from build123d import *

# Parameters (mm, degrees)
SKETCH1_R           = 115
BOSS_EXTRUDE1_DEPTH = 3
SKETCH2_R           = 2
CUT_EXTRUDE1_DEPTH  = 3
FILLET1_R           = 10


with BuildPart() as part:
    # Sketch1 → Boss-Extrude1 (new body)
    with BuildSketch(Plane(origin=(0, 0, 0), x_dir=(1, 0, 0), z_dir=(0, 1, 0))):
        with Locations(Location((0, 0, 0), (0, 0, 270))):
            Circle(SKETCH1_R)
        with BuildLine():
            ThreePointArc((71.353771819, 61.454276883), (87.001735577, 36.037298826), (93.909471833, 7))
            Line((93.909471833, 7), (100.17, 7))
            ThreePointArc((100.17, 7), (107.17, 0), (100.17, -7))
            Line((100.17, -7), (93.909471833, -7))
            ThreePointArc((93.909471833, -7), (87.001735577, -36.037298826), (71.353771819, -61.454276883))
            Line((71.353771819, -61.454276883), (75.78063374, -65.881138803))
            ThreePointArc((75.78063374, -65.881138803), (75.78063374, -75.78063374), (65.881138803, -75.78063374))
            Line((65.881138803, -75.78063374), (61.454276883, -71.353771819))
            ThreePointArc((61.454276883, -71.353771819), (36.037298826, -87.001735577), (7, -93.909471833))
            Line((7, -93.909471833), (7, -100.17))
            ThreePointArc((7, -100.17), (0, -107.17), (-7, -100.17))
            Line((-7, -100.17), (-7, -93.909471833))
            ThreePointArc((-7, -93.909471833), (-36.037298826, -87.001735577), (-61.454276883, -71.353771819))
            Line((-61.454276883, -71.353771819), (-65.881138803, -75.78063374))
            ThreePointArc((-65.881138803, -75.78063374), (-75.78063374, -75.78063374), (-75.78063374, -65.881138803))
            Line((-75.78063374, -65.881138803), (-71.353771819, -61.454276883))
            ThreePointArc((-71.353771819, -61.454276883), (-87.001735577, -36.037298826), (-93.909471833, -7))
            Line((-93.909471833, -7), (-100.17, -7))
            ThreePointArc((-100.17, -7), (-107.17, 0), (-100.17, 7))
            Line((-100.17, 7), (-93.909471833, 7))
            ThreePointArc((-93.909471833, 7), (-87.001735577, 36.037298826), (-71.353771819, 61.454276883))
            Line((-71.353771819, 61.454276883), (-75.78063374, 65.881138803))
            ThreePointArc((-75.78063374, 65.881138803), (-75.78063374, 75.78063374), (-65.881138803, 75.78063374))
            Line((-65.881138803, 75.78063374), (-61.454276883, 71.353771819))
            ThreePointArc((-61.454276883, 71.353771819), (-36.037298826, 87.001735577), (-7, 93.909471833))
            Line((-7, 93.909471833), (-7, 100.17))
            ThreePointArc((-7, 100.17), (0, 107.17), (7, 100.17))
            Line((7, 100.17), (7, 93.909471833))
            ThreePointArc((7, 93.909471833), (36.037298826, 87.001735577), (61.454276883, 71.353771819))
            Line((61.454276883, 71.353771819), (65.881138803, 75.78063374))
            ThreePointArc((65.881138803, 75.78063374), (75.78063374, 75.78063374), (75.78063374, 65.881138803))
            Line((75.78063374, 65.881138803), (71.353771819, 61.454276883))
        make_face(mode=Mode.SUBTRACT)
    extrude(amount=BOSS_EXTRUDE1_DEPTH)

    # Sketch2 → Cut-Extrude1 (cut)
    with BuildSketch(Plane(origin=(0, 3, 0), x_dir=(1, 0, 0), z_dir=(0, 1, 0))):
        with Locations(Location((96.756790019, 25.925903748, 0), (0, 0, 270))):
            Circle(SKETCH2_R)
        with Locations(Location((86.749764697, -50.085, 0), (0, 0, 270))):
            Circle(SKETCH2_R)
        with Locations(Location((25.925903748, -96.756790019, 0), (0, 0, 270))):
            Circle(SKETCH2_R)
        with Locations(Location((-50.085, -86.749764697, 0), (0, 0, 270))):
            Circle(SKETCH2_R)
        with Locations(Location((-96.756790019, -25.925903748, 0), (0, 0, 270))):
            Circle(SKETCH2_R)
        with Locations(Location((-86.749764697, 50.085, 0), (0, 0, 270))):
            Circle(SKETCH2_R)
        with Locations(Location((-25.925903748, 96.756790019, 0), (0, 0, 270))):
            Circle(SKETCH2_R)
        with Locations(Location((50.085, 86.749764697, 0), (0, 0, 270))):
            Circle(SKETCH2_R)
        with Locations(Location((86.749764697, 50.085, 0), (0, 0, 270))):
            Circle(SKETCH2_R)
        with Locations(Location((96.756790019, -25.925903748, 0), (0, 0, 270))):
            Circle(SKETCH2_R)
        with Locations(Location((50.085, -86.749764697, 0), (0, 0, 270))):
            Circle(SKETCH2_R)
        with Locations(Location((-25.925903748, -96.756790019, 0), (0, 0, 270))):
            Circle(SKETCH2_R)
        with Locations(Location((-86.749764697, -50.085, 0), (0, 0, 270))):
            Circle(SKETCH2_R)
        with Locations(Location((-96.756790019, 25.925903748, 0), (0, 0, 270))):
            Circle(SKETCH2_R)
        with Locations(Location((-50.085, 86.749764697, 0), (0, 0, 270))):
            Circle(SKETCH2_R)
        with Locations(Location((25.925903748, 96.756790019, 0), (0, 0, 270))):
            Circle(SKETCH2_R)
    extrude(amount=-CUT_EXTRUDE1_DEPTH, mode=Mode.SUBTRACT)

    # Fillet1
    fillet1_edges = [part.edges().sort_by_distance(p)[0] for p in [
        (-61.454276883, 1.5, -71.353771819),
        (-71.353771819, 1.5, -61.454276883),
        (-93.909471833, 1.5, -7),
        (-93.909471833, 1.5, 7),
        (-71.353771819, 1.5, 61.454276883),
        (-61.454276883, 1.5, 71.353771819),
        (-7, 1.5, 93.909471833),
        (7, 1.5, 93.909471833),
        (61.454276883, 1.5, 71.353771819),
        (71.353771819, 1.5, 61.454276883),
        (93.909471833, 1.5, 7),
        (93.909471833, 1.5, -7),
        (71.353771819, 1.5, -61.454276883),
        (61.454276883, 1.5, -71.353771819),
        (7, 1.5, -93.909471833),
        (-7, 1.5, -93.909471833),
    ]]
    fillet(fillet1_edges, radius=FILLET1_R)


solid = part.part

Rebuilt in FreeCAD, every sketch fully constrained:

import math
import FreeCAD as App
import Part
import Sketcher


def edges_at(feature, points):
    """Names of the edges that pass closest to the given points."""
    edges = feature.Shape.Edges
    near = lambda p: min(range(len(edges)), key=lambda i: edges[i].distToShape(Part.Vertex(*p))[0])
    return sorted({f"Edge{near(p) + 1}" for p in points})

doc = App.newDocument("Part")
body = doc.addObject("PartDesign::Body", "Body")

# Sketch on XZ plane
sketch1 = body.newObject("Sketcher::SketchObject", "Sketch")
sketch1.AttachmentSupport = (doc.getObject("XZ_Plane"), [""])
sketch1.MapMode = "FlatFace"
sketch1.addGeometry(Part.Circle(App.Vector(0, 0, 0), App.Vector(0, 0, 1), 115), False)
sketch1.addGeometry(Part.LineSegment(App.Vector(75.780634, -65.881139, 0), App.Vector(71.353772, -61.454277, 0)), False)
sketch1.addGeometry(Part.ArcOfCircle(Part.Circle(App.Vector(0, 0, 0), App.Vector(0, 0, 1), 94.17), math.radians(-40.737064), math.radians(-4.262936)), False)
sketch1.addGeometry(Part.LineSegment(App.Vector(93.909472, -7, 0), App.Vector(100.17, -7, 0)), False)
sketch1.addGeometry(Part.ArcOfCircle(Part.Circle(App.Vector(100.17, 0, 0), App.Vector(0, 0, 1), 7), math.radians(-90), math.radians(90)), False)
sketch1.addGeometry(Part.LineSegment(App.Vector(100.17, 7, 0), App.Vector(93.909472, 7, 0)), False)
sketch1.addGeometry(Part.ArcOfCircle(Part.Circle(App.Vector(0, 0, 0), App.Vector(0, 0, 1), 94.17), math.radians(4.262936), math.radians(40.737064)), False)
sketch1.addGeometry(Part.LineSegment(App.Vector(71.353772, 61.454277, 0), App.Vector(75.780634, 65.881139, 0)), False)
sketch1.addGeometry(Part.ArcOfCircle(Part.Circle(App.Vector(70.830886, 70.830886, 0), App.Vector(0, 0, 1), 7), math.radians(-45), math.radians(135)), False)
sketch1.addGeometry(Part.LineSegment(App.Vector(65.881139, 75.780634, 0), App.Vector(61.454277, 71.353772, 0)), False)
sketch1.addGeometry(Part.ArcOfCircle(Part.Circle(App.Vector(0, 0, 0), App.Vector(0, 0, 1), 94.17), math.radians(49.262936), math.radians(85.737064)), False)
sketch1.addGeometry(Part.LineSegment(App.Vector(7, 93.909472, 0), App.Vector(7, 100.17, 0)), False)
sketch1.addGeometry(Part.ArcOfCircle(Part.Circle(App.Vector(0, 100.17, 0), App.Vector(0, 0, 1), 7), math.radians(0), math.radians(180)), False)
sketch1.addGeometry(Part.LineSegment(App.Vector(-7, 100.17, 0), App.Vector(-7, 93.909472, 0)), False)
sketch1.addGeometry(Part.ArcOfCircle(Part.Circle(App.Vector(0, 0, 0), App.Vector(0, 0, 1), 94.17), math.radians(94.262936), math.radians(130.737064)), False)
sketch1.addGeometry(Part.LineSegment(App.Vector(-61.454277, 71.353772, 0), App.Vector(-65.881139, 75.780634, 0)), False)
sketch1.addGeometry(Part.ArcOfCircle(Part.Circle(App.Vector(-70.830886, 70.830886, 0), App.Vector(0, 0, 1), 7), math.radians(45), math.radians(225)), False)
sketch1.addGeometry(Part.LineSegment(App.Vector(-75.780634, 65.881139, 0), App.Vector(-71.353772, 61.454277, 0)), False)
sketch1.addGeometry(Part.ArcOfCircle(Part.Circle(App.Vector(0, 0, 0), App.Vector(0, 0, 1), 94.17), math.radians(139.262936), math.radians(175.737064)), False)
sketch1.addGeometry(Part.LineSegment(App.Vector(-93.909472, 7, 0), App.Vector(-100.17, 7, 0)), False)
sketch1.addGeometry(Part.ArcOfCircle(Part.Circle(App.Vector(-100.17, 0, 0), App.Vector(0, 0, 1), 7), math.radians(90), math.radians(270)), False)
sketch1.addGeometry(Part.LineSegment(App.Vector(-100.17, -7, 0), App.Vector(-93.909472, -7, 0)), False)
sketch1.addGeometry(Part.ArcOfCircle(Part.Circle(App.Vector(0, 0, 0), App.Vector(0, 0, 1), 94.17), math.radians(-175.737064), math.radians(-139.262936)), False)
sketch1.addGeometry(Part.LineSegment(App.Vector(-71.353772, -61.454277, 0), App.Vector(-75.780634, -65.881139, 0)), False)
sketch1.addGeometry(Part.ArcOfCircle(Part.Circle(App.Vector(-70.830886, -70.830886, 0), App.Vector(0, 0, 1), 7), math.radians(135), math.radians(315)), False)
sketch1.addGeometry(Part.LineSegment(App.Vector(-65.881139, -75.780634, 0), App.Vector(-61.454277, -71.353772, 0)), False)
sketch1.addGeometry(Part.ArcOfCircle(Part.Circle(App.Vector(0, 0, 0), App.Vector(0, 0, 1), 94.17), math.radians(-130.737064), math.radians(-94.262936)), False)
sketch1.addGeometry(Part.LineSegment(App.Vector(-7, -93.909472, 0), App.Vector(-7, -100.17, 0)), False)
sketch1.addGeometry(Part.ArcOfCircle(Part.Circle(App.Vector(0, -100.17, 0), App.Vector(0, 0, 1), 7), math.radians(180), math.radians(360)), False)
sketch1.addGeometry(Part.LineSegment(App.Vector(7, -100.17, 0), App.Vector(7, -93.909472, 0)), False)
sketch1.addGeometry(Part.ArcOfCircle(Part.Circle(App.Vector(0, 0, 0), App.Vector(0, 0, 1), 94.17), math.radians(-85.737064), math.radians(-49.262936)), False)
sketch1.addGeometry(Part.LineSegment(App.Vector(61.454277, -71.353772, 0), App.Vector(65.881139, -75.780634, 0)), False)
sketch1.addGeometry(Part.ArcOfCircle(Part.Circle(App.Vector(70.830886, -70.830886, 0), App.Vector(0, 0, 1), 7), math.radians(-135), math.radians(45)), False)
sketch1.addConstraint(Sketcher.Constraint("Coincident", 1, 2, 2, 1))
sketch1.addConstraint(Sketcher.Constraint("Coincident", 2, 2, 3, 1))
sketch1.addConstraint(Sketcher.Constraint("Tangent", 3, 2, 4, 1))
sketch1.addConstraint(Sketcher.Constraint("Tangent", 4, 2, 5, 1))
sketch1.addConstraint(Sketcher.Constraint("Coincident", 5, 2, 6, 1))
sketch1.addConstraint(Sketcher.Constraint("Coincident", 6, 2, 7, 1))
sketch1.addConstraint(Sketcher.Constraint("Tangent", 7, 2, 8, 1))
sketch1.addConstraint(Sketcher.Constraint("Tangent", 8, 2, 9, 1))
sketch1.addConstraint(Sketcher.Constraint("Coincident", 9, 2, 10, 1))
sketch1.addConstraint(Sketcher.Constraint("Coincident", 10, 2, 11, 1))
sketch1.addConstraint(Sketcher.Constraint("Tangent", 11, 2, 12, 1))
sketch1.addConstraint(Sketcher.Constraint("Tangent", 12, 2, 13, 1))
sketch1.addConstraint(Sketcher.Constraint("Coincident", 13, 2, 14, 1))
sketch1.addConstraint(Sketcher.Constraint("Coincident", 14, 2, 15, 1))
sketch1.addConstraint(Sketcher.Constraint("Tangent", 15, 2, 16, 1))
sketch1.addConstraint(Sketcher.Constraint("Tangent", 16, 2, 17, 1))
sketch1.addConstraint(Sketcher.Constraint("Coincident", 17, 2, 18, 1))
sketch1.addConstraint(Sketcher.Constraint("Coincident", 18, 2, 19, 1))
sketch1.addConstraint(Sketcher.Constraint("Tangent", 19, 2, 20, 1))
sketch1.addConstraint(Sketcher.Constraint("Tangent", 20, 2, 21, 1))
sketch1.addConstraint(Sketcher.Constraint("Coincident", 21, 2, 22, 1))
sketch1.addConstraint(Sketcher.Constraint("Coincident", 22, 2, 23, 1))
sketch1.addConstraint(Sketcher.Constraint("Tangent", 23, 2, 24, 1))
sketch1.addConstraint(Sketcher.Constraint("Tangent", 24, 2, 25, 1))
sketch1.addConstraint(Sketcher.Constraint("Coincident", 25, 2, 26, 1))
sketch1.addConstraint(Sketcher.Constraint("Coincident", 26, 2, 27, 1))
sketch1.addConstraint(Sketcher.Constraint("Tangent", 27, 2, 28, 1))
sketch1.addConstraint(Sketcher.Constraint("Tangent", 28, 2, 29, 1))
sketch1.addConstraint(Sketcher.Constraint("Coincident", 29, 2, 30, 1))
sketch1.addConstraint(Sketcher.Constraint("Coincident", 30, 2, 31, 1))
sketch1.addConstraint(Sketcher.Constraint("Tangent", 31, 2, 32, 1))
sketch1.addConstraint(Sketcher.Constraint("Tangent", 32, 2, 1, 1))
sketch1.addConstraint(Sketcher.Constraint("Horizontal", 3))
sketch1.addConstraint(Sketcher.Constraint("Horizontal", 5))
sketch1.addConstraint(Sketcher.Constraint("Vertical", 11))
sketch1.addConstraint(Sketcher.Constraint("Vertical", 13))
sketch1.addConstraint(Sketcher.Constraint("Horizontal", 19))
sketch1.addConstraint(Sketcher.Constraint("Horizontal", 21))
sketch1.addConstraint(Sketcher.Constraint("Vertical", 27))
sketch1.addConstraint(Sketcher.Constraint("Vertical", 29))
sketch1.addConstraint(Sketcher.Constraint("Coincident", 0, 3, -1, 1))
sketch1.addConstraint(Sketcher.Constraint("Coincident", 2, 3, -1, 1))
sketch1.addConstraint(Sketcher.Constraint("Coincident", 6, 3, -1, 1))
sketch1.addConstraint(Sketcher.Constraint("Coincident", 10, 3, -1, 1))
sketch1.addConstraint(Sketcher.Constraint("Coincident", 14, 3, -1, 1))
sketch1.addConstraint(Sketcher.Constraint("Coincident", 18, 3, -1, 1))
sketch1.addConstraint(Sketcher.Constraint("Coincident", 22, 3, -1, 1))
sketch1.addConstraint(Sketcher.Constraint("Coincident", 26, 3, -1, 1))
sketch1.addConstraint(Sketcher.Constraint("Coincident", 30, 3, -1, 1))
sketch1.addConstraint(Sketcher.Constraint("Equal", 2, 6))
sketch1.addConstraint(Sketcher.Constraint("Equal", 4, 8))
sketch1.addConstraint(Sketcher.Constraint("Equal", 6, 10))
sketch1.addConstraint(Sketcher.Constraint("Equal", 8, 12))
sketch1.addConstraint(Sketcher.Constraint("Equal", 10, 14))
sketch1.addConstraint(Sketcher.Constraint("Equal", 12, 16))
sketch1.addConstraint(Sketcher.Constraint("Equal", 14, 18))
sketch1.addConstraint(Sketcher.Constraint("Equal", 16, 20))
sketch1.addConstraint(Sketcher.Constraint("Equal", 18, 22))
sketch1.addConstraint(Sketcher.Constraint("Equal", 20, 24))
sketch1.addConstraint(Sketcher.Constraint("Equal", 22, 26))
sketch1.addConstraint(Sketcher.Constraint("Equal", 24, 28))
sketch1.addConstraint(Sketcher.Constraint("Equal", 26, 30))
sketch1.addConstraint(Sketcher.Constraint("Equal", 28, 32))
sketch1.addConstraint(Sketcher.Constraint("Symmetric", 4, 3, 20, 3, -1, 1))
sketch1.addConstraint(Sketcher.Constraint("Symmetric", 8, 3, 24, 3, -1, 1))
sketch1.addConstraint(Sketcher.Constraint("Symmetric", 12, 3, 28, 3, -1, 1))
sketch1.addConstraint(Sketcher.Constraint("Symmetric", 16, 3, 32, 3, -1, 1))
sketch1.addConstraint(Sketcher.Constraint("Symmetric", 8, 3, 16, 3, -2))
sketch1.addConstraint(Sketcher.Constraint("PointOnObject", 4, 3, -1))
sketch1.addConstraint(Sketcher.Constraint("PointOnObject", 12, 3, -2))
sketch1.addConstraint(Sketcher.Constraint("Perpendicular", 1, 7))
sketch1.addConstraint(Sketcher.Constraint("Parallel", 7, 9))
sketch1.addConstraint(Sketcher.Constraint("Perpendicular", 9, 15))
sketch1.addConstraint(Sketcher.Constraint("Parallel", 15, 17))
sketch1.addConstraint(Sketcher.Constraint("Perpendicular", 17, 23))
sketch1.addConstraint(Sketcher.Constraint("Parallel", 23, 25))
sketch1.addConstraint(Sketcher.Constraint("Perpendicular", 25, 31))
sketch1.addConstraint(Sketcher.Constraint("Horizontal", 9, 2, 14, 2))
sketch1.addConstraint(Sketcher.Constraint("Equal", 21, 11))
sketch1.addConstraint(Sketcher.Constraint("Equal", 7, 9))
sketch1.addConstraint(Sketcher.Constraint("Diameter", 0, 230.0))
sketch1.addConstraint(Sketcher.Constraint("Radius", 4, 7.0))
sketch1.addConstraint(Sketcher.Constraint("Radius", 2, 94.17))
sketch1.addConstraint(Sketcher.Constraint("DistanceX", -1, 1, 4, 3, 100.17))
sketch1.addConstraint(Sketcher.Constraint("Distance", 1, 6.260528))
pad1 = body.newObject("PartDesign::Pad", "Pad")
pad1.Profile = sketch1
pad1.Length = 3
pad1.Reversed = True

# Sketch on XZ plane
sketch2 = body.newObject("Sketcher::SketchObject", "Sketch001")
sketch2.AttachmentSupport = (doc.getObject("XZ_Plane"), [""])
sketch2.MapMode = "FlatFace"
sketch2.AttachmentOffset = App.Placement(App.Vector(0, 0, -3), App.Rotation())
sketch2.addGeometry(Part.Circle(App.Vector(96.75679, -25.925904, 0), App.Vector(0, 0, 1), 2), False)
sketch2.addGeometry(Part.Circle(App.Vector(86.749765, 50.085, 0), App.Vector(0, 0, 1), 2), False)
sketch2.addGeometry(Part.Circle(App.Vector(25.925904, 96.75679, 0), App.Vector(0, 0, 1), 2), False)
sketch2.addGeometry(Part.Circle(App.Vector(-50.085, 86.749765, 0), App.Vector(0, 0, 1), 2), False)
sketch2.addGeometry(Part.Circle(App.Vector(-96.75679, 25.925904, 0), App.Vector(0, 0, 1), 2), False)
sketch2.addGeometry(Part.Circle(App.Vector(-86.749765, -50.085, 0), App.Vector(0, 0, 1), 2), False)
sketch2.addGeometry(Part.Circle(App.Vector(-25.925904, -96.75679, 0), App.Vector(0, 0, 1), 2), False)
sketch2.addGeometry(Part.Circle(App.Vector(50.085, -86.749765, 0), App.Vector(0, 0, 1), 2), False)
sketch2.addGeometry(Part.Circle(App.Vector(86.749765, -50.085, 0), App.Vector(0, 0, 1), 2), False)
sketch2.addGeometry(Part.Circle(App.Vector(96.75679, 25.925904, 0), App.Vector(0, 0, 1), 2), False)
sketch2.addGeometry(Part.Circle(App.Vector(50.085, 86.749765, 0), App.Vector(0, 0, 1), 2), False)
sketch2.addGeometry(Part.Circle(App.Vector(-25.925904, 96.75679, 0), App.Vector(0, 0, 1), 2), False)
sketch2.addGeometry(Part.Circle(App.Vector(-86.749765, 50.085, 0), App.Vector(0, 0, 1), 2), False)
sketch2.addGeometry(Part.Circle(App.Vector(-96.75679, -25.925904, 0), App.Vector(0, 0, 1), 2), False)
sketch2.addGeometry(Part.Circle(App.Vector(-50.085, -86.749765, 0), App.Vector(0, 0, 1), 2), False)
sketch2.addGeometry(Part.Circle(App.Vector(25.925904, -96.75679, 0), App.Vector(0, 0, 1), 2), False)
sketch2.addConstraint(Sketcher.Constraint("Equal", 0, 1))
sketch2.addConstraint(Sketcher.Constraint("Equal", 1, 2))
sketch2.addConstraint(Sketcher.Constraint("Equal", 2, 3))
sketch2.addConstraint(Sketcher.Constraint("Equal", 3, 4))
sketch2.addConstraint(Sketcher.Constraint("Equal", 4, 5))
sketch2.addConstraint(Sketcher.Constraint("Equal", 5, 6))
sketch2.addConstraint(Sketcher.Constraint("Equal", 6, 7))
sketch2.addConstraint(Sketcher.Constraint("Equal", 7, 8))
sketch2.addConstraint(Sketcher.Constraint("Equal", 8, 9))
sketch2.addConstraint(Sketcher.Constraint("Equal", 9, 10))
sketch2.addConstraint(Sketcher.Constraint("Equal", 10, 11))
sketch2.addConstraint(Sketcher.Constraint("Equal", 11, 12))
sketch2.addConstraint(Sketcher.Constraint("Equal", 12, 13))
sketch2.addConstraint(Sketcher.Constraint("Equal", 13, 14))
sketch2.addConstraint(Sketcher.Constraint("Equal", 14, 15))
sketch2.addConstraint(Sketcher.Constraint("Symmetric", 0, 3, 4, 3, -1, 1))
sketch2.addConstraint(Sketcher.Constraint("Symmetric", 1, 3, 5, 3, -1, 1))
sketch2.addConstraint(Sketcher.Constraint("Symmetric", 2, 3, 6, 3, -1, 1))
sketch2.addConstraint(Sketcher.Constraint("Symmetric", 3, 3, 7, 3, -1, 1))
sketch2.addConstraint(Sketcher.Constraint("Symmetric", 8, 3, 12, 3, -1, 1))
sketch2.addConstraint(Sketcher.Constraint("Symmetric", 9, 3, 13, 3, -1, 1))
sketch2.addConstraint(Sketcher.Constraint("Symmetric", 10, 3, 14, 3, -1, 1))
sketch2.addConstraint(Sketcher.Constraint("Symmetric", 11, 3, 15, 3, -1, 1))
sketch2.addConstraint(Sketcher.Constraint("Symmetric", 5, 3, 8, 3, -2))
sketch2.addConstraint(Sketcher.Constraint("Symmetric", 4, 3, 9, 3, -2))
sketch2.addConstraint(Sketcher.Constraint("Symmetric", 3, 3, 10, 3, -2))
sketch2.addConstraint(Sketcher.Constraint("Symmetric", 2, 3, 11, 3, -2))
sketch2.addConstraint(Sketcher.Constraint("Diameter", 0, 4.0))
sketch2.addConstraint(Sketcher.Constraint("DistanceY", 5, 3, 1, 3, 100.17))
sketch2.addConstraint(Sketcher.Constraint("DistanceX", 3, 3, 10, 3, 100.17))
sketch2.addConstraint(Sketcher.Constraint("DistanceX", -1, 1, 0, 3, 96.75679))
sketch2.addConstraint(Sketcher.Constraint("DistanceY", -1, 1, 2, 3, 96.75679))
sketch2.addConstraint(Sketcher.Constraint("DistanceX", 2, 3, 1, 3, 60.823861))
sketch2.addConstraint(Sketcher.Constraint("DistanceY", 0, 3, 3, 3, 112.675668))
sketch2.addConstraint(Sketcher.Constraint("DistanceY", 4, 3, 3, 3, 60.823861))
sketch2.addConstraint(Sketcher.Constraint("DistanceX", 5, 3, 2, 3, 112.675668))
pocket1 = body.newObject("PartDesign::Pocket", "Pocket")
pocket1.Profile = sketch2
pocket1.Length = 3
pocket1.Reversed = True
doc.recompute()

fillet = body.newObject("PartDesign::Fillet", "Fillet")
fillet.Base = (pocket1, edges_at(pocket1, [
    (-61.454, 1.5, -71.354),
    (-71.354, 1.5, -61.454),
    (-93.909, 1.5, -7),
    (-93.909, 1.5, 7),
    (-71.354, 1.5, 61.454),
    (-61.454, 1.5, 71.354),
    (-7, 1.5, 93.909),
    (7, 1.5, 93.909),
    (61.454, 1.5, 71.354),
    (71.354, 1.5, 61.454),
    (93.909, 1.5, 7),
    (93.909, 1.5, -7),
    (71.354, 1.5, -61.454),
    (61.454, 1.5, -71.354),
    (7, 1.5, -93.909),
    (-7, 1.5, -93.909),
]))
fillet.Radius = 10

doc.recompute()
